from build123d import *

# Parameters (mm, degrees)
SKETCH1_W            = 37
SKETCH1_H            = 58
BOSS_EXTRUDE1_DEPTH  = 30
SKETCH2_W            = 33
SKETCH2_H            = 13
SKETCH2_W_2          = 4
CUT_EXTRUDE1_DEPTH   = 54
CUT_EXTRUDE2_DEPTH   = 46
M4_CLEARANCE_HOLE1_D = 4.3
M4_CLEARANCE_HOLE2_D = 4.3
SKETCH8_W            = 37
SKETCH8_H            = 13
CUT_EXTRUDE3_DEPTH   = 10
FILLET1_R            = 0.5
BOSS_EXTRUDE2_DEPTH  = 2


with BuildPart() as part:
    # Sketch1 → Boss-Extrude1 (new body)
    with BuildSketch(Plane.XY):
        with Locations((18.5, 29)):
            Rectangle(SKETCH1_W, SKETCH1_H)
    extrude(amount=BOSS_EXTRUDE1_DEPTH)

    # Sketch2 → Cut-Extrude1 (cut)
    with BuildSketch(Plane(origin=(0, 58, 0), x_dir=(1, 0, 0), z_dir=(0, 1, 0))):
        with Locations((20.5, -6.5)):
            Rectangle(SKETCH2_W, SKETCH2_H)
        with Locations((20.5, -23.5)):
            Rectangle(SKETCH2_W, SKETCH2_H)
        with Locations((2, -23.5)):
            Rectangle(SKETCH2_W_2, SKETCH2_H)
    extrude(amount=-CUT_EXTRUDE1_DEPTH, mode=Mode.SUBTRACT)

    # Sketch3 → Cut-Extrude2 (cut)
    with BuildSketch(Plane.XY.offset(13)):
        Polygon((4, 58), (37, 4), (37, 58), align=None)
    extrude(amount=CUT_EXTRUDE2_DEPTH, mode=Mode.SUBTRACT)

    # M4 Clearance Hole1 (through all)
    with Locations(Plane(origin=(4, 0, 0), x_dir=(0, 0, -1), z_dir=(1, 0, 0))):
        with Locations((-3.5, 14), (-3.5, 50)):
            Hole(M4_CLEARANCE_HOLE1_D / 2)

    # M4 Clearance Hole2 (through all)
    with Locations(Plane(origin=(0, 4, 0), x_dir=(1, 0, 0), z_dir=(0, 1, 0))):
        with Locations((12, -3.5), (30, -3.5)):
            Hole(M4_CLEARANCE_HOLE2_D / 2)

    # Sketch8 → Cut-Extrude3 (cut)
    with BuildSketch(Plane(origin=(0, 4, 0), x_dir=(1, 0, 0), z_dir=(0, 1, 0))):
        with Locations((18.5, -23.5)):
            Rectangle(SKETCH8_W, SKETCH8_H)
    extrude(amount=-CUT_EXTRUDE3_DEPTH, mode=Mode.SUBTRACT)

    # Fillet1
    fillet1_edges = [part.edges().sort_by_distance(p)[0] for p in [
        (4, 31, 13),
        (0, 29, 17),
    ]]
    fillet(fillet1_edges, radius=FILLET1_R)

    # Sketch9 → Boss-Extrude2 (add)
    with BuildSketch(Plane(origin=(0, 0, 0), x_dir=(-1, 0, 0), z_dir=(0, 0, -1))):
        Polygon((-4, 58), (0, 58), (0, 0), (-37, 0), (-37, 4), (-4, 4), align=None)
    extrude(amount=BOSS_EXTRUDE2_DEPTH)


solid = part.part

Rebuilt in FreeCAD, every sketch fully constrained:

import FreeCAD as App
import Part
import Sketcher

V = App.Vector


def edges_at(feature, points):
    """Names of the edges that pass closest to the given points."""
    edges = feature.Shape.Edges
    near = lambda p: min(range(len(edges)), key=lambda i: edges[i].distToShape(Part.Vertex(*p))[0])
    return sorted({f"Edge{near(p) + 1}" for p in points})


def add_polygon(sketch, points):
    """Adds a closed chain of lines whose ends are joined by coincident constraints."""
    first, n = sketch.GeometryCount, len(points)
    for a, b in zip(points, points[1:] + points[:1]):
        sketch.addGeometry(Part.LineSegment(App.Vector(*a, 0), App.Vector(*b, 0)), False)
    for i in range(n):
        sketch.addConstraint(Sketcher.Constraint("Coincident", first + i, 2, first + (i + 1) % n, 1))

doc = App.newDocument("Part")
params = doc.addObject("Spreadsheet::Sheet", "Params")
for row, (alias, value) in enumerate([
    ("sketch1_width", "37 mm"),
    ("sketch1_height", "58 mm"),
    ("pad1_length", "30 mm"),
    ("sketch2_width", "33 mm"),
    ("sketch2_width2", "37 mm"),
    ("sketch2_height", "13 mm"),
    ("pocket1_length", "54 mm"),
    ("sketch3_width", "33 mm"),
    ("sketch3_height", "54 mm"),
    ("pocket2_length", "46 mm"),
    ("sketch4_diameter", "4.3 mm"),
    ("hole_diameter", "4.3 mm"),
    ("sketch5_diameter", "4.3 mm"),
    ("hole2_diameter", "4.3 mm"),
    ("sketch6_width", "37 mm"),
    ("sketch6_height", "13 mm"),
    ("pocket3_length", "10 mm"),
    ("fillet_radius", "0.5 mm"),
    ("sketch7_width", "4 mm"),
    ("sketch7_width2", "33 mm"),
    ("sketch7_height", "54 mm"),
    ("pad2_length", "2 mm"),
], start=1):
    params.set(f"A{row}", alias)
    params.set(f"B{row}", "=" + value)
    params.setAlias(f"B{row}", alias)

body = doc.addObject("PartDesign::Body", "Body")

# Sketch on XY plane
sketch1 = body.newObject("Sketcher::SketchObject", "Sketch")
sketch1.AttachmentSupport = (doc.getObject("XY_Plane"), [""])
sketch1.MapMode = "FlatFace"
add_polygon(sketch1, [(0, 58), (0, 0), (37, 0), (37, 58)])  # lines 0-3
sketch1.addConstraint(Sketcher.Constraint("Vertical", 0))
sketch1.addConstraint(Sketcher.Constraint("Horizontal", 1))
sketch1.addConstraint(Sketcher.Constraint("Vertical", 2))
sketch1.addConstraint(Sketcher.Constraint("Horizontal", 3))
sketch1.addConstraint(Sketcher.Constraint("Coincident", 0, 2, -1, 1))
sketch1.addConstraint(Sketcher.Constraint("DistanceX", 1, 1, 1, 2, 37.0))
sketch1.addConstraint(Sketcher.Constraint("DistanceY", 0, 2, 0, 1, 58.0))
sketch1.setExpression("Constraints[9]", "Params.sketch1_width")
sketch1.setExpression("Constraints[10]", "Params.sketch1_height")
pad1 = body.newObject("PartDesign::Pad", "Pad")
pad1.Profile = sketch1
pad1.setExpression("Length", "Params.pad1_length")

# Sketch on XZ plane
sketch2 = body.newObject("Sketcher::SketchObject", "Sketch001")
sketch2.AttachmentSupport = (doc.getObject("XZ_Plane"), [""])
sketch2.MapMode = "FlatFace"
sketch2.AttachmentOffset = App.Placement(V(0, 0, -58), App.Rotation())
add_polygon(sketch2, [(4, 0), (4, 13), (37, 13), (37, 0)])  # lines 0-3
add_polygon(sketch2, [(37, 30), (37, 17), (0, 17), (0, 30)])  # lines 4-7
sketch2.addConstraint(Sketcher.Constraint("Vertical", 0))
sketch2.addConstraint(Sketcher.Constraint("Horizontal", 1))
sketch2.addConstraint(Sketcher.Constraint("Vertical", 2))
sketch2.addConstraint(Sketcher.Constraint("Horizontal", 3))
sketch2.addConstraint(Sketcher.Constraint("Vertical", 4))
sketch2.addConstraint(Sketcher.Constraint("Horizontal", 5))
sketch2.addConstraint(Sketcher.Constraint("Vertical", 6))
sketch2.addConstraint(Sketcher.Constraint("Horizontal", 7))
sketch2.addConstraint(Sketcher.Constraint("PointOnObject", 2, 2, -1))
sketch2.addConstraint(Sketcher.Constraint("PointOnObject", 5, 2, -2))
sketch2.addConstraint(Sketcher.Constraint("Vertical", 2, 2, 4, 2))
sketch2.addConstraint(Sketcher.Constraint("Equal", 2, 4))
sketch2.addConstraint(Sketcher.Constraint("DistanceX", 1, 1, 1, 2, 33.0))
sketch2.addConstraint(Sketcher.Constraint("DistanceX", 5, 2, 5, 1, 37.0))
sketch2.addConstraint(Sketcher.Constraint("DistanceY", 0, 1, 0, 2, 13.0))
sketch2.addConstraint(Sketcher.Constraint("DistanceY", -1, 1, 4, 2, 17.0))
sketch2.setExpression("Constraints[20]", "Params.sketch2_width")
sketch2.setExpression("Constraints[21]", "Params.sketch2_width2")
sketch2.setExpression("Constraints[22]", "Params.sketch2_height")
pocket1 = body.newObject("PartDesign::Pocket", "Pocket")
pocket1.Profile = sketch2
pocket1.setExpression("Length", "Params.pocket1_length")
pocket1.Reversed = True

# Sketch on XY plane
sketch3 = body.newObject("Sketcher::SketchObject", "Sketch002")
sketch3.AttachmentSupport = (doc.getObject("XY_Plane"), [""])
sketch3.MapMode = "FlatFace"
sketch3.AttachmentOffset = App.Placement(V(0, 0, 13), App.Rotation())
add_polygon(sketch3, [(4, 58), (37, 4), (37, 58)])  # lines 0-2
sketch3.addConstraint(Sketcher.Constraint("Vertical", 1))
sketch3.addConstraint(Sketcher.Constraint("Horizontal", 2))
sketch3.addConstraint(Sketcher.Constraint("DistanceX", 2, 2, 2, 1, 33.0))
sketch3.addConstraint(Sketcher.Constraint("DistanceY", 1, 1, 1, 2, 54.0))
sketch3.addConstraint(Sketcher.Constraint("DistanceX", -1, 1, 0, 2, 37.0))
sketch3.addConstraint(Sketcher.Constraint("DistanceY", -1, 1, 0, 2, 4.0))
sketch3.setExpression("Constraints[5]", "Params.sketch3_width")
sketch3.setExpression("Constraints[6]", "Params.sketch3_height")
pocket2 = body.newObject("PartDesign::Pocket", "Pocket001")
pocket2.Profile = sketch3
pocket2.setExpression("Length", "Params.pocket2_length")
pocket2.Reversed = True

# Sketch on YZ plane
sketch4 = body.newObject("Sketcher::SketchObject", "Sketch003")
sketch4.AttachmentSupport = (doc.getObject("YZ_Plane"), [""])
sketch4.MapMode = "FlatFace"
sketch4.AttachmentOffset = App.Placement(V(0, 0, 4), App.Rotation())
sketch4.addGeometry(Part.Circle(V(14, 3.5, 0), V(0, 0, 1), 2.1), False)
sketch4.addGeometry(Part.Circle(V(50, 3.5, 0), V(0, 0, 1), 2.1), False)
sketch4.addConstraint(Sketcher.Constraint("Equal", 0, 1))
sketch4.addConstraint(Sketcher.Constraint("Horizontal", 0, 3, 1, 3))
sketch4.addConstraint(Sketcher.Constraint("Diameter", 0, 4.3))
sketch4.addConstraint(Sketcher.Constraint("DistanceX", -1, 1, 0, 3, 14.0))
sketch4.addConstraint(Sketcher.Constraint("DistanceX", -1, 1, 1, 3, 50.0))
sketch4.addConstraint(Sketcher.Constraint("DistanceY", -1, 1, 0, 3, 3.5))
sketch4.setExpression("Constraints[2]", "Params.sketch4_diameter")
doc.recompute()
hole = body.newObject("PartDesign::Hole", "Hole")
hole.Profile = sketch4
hole.ThreadType = "None"
hole.setExpression("Diameter", "Params.hole_diameter")
hole.DepthType = "ThroughAll"

# Sketch on XZ plane
sketch5 = body.newObject("Sketcher::SketchObject", "Sketch004")
sketch5.AttachmentSupport = (doc.getObject("XZ_Plane"), [""])
sketch5.MapMode = "FlatFace"
sketch5.AttachmentOffset = App.Placement(V(0, 0, -4), App.Rotation())
sketch5.addGeometry(Part.Circle(V(12, 3.5, 0), V(0, 0, 1), 2.1), False)
sketch5.addGeometry(Part.Circle(V(30, 3.5, 0), V(0, 0, 1), 2.1), False)
sketch5.addConstraint(Sketcher.Constraint("Equal", 0, 1))
sketch5.addConstraint(Sketcher.Constraint("Horizontal", 0, 3, 1, 3))
sketch5.addConstraint(Sketcher.Constraint("Diameter", 0, 4.3))
sketch5.addConstraint(Sketcher.Constraint("DistanceX", -1, 1, 0, 3, 12.0))
sketch5.addConstraint(Sketcher.Constraint("DistanceX", -1, 1, 1, 3, 30.0))
sketch5.addConstraint(Sketcher.Constraint("DistanceY", -1, 1, 0, 3, 3.5))
sketch5.setExpression("Constraints[2]", "Params.sketch5_diameter")
doc.recompute()
hole2 = body.newObject("PartDesign::Hole", "Hole001")
hole2.Profile = sketch5
hole2.ThreadType = "None"
hole2.setExpression("Diameter", "Params.hole2_diameter")
hole2.DepthType = "ThroughAll"
hole2.Reversed = True

# Sketch on XZ plane
sketch6 = body.newObject("Sketcher::SketchObject", "Sketch005")
sketch6.AttachmentSupport = (doc.getObject("XZ_Plane"), [""])
sketch6.MapMode = "FlatFace"
sketch6.AttachmentOffset = App.Placement(V(0, 0, -4), App.Rotation())
add_polygon(sketch6, [(0, 17), (0, 30), (37, 30), (37, 17)])  # lines 0-3
sketch6.addConstraint(Sketcher.Constraint("Vertical", 0))
sketch6.addConstraint(Sketcher.Constraint("Horizontal", 1))
sketch6.addConstraint(Sketcher.Constraint("Vertical", 2))
sketch6.addConstraint(Sketcher.Constraint("Horizontal", 3))
sketch6.addConstraint(Sketcher.Constraint("PointOnObject", 0, 2, -2))
sketch6.addConstraint(Sketcher.Constraint("DistanceX", 1, 1, 1, 2, 37.0))
sketch6.addConstraint(Sketcher.Constraint("DistanceY", 0, 1, 0, 2, 13.0))
sketch6.addConstraint(Sketcher.Constraint("DistanceY", -1, 1, 0, 2, 30.0))
sketch6.setExpression("Constraints[9]", "Params.sketch6_width")
sketch6.setExpression("Constraints[10]", "Params.sketch6_height")
pocket3 = body.newObject("PartDesign::Pocket", "Pocket002")
pocket3.Profile = sketch6
pocket3.setExpression("Length", "Params.pocket3_length")
pocket3.Reversed = True
doc.recompute()

fillet = body.newObject("PartDesign::Fillet", "Fillet")
fillet.Base = (pocket3, edges_at(pocket3, [(4, 31, 13), (0, 29, 17)]))
fillet.setExpression("Radius", "Params.fillet_radius")

# Sketch on XY plane
sketch7 = body.newObject("Sketcher::SketchObject", "Sketch006")
sketch7.AttachmentSupport = (doc.getObject("XY_Plane"), [""])
sketch7.MapMode = "FlatFace"
add_polygon(sketch7, [(0, 58), (4, 58), (4, 4), (37, 4), (37, 0), (0, 0)])  # lines 0-5
sketch7.addConstraint(Sketcher.Constraint("Horizontal", 0))
sketch7.addConstraint(Sketcher.Constraint("Vertical", 1))
sketch7.addConstraint(Sketcher.Constraint("Horizontal", 2))
sketch7.addConstraint(Sketcher.Constraint("Vertical", 3))
sketch7.addConstraint(Sketcher.Constraint("Horizontal", 4))
sketch7.addConstraint(Sketcher.Constraint("Vertical", 5))
sketch7.addConstraint(Sketcher.Constraint("Coincident", 4, 2, -1, 1))
sketch7.addConstraint(Sketcher.Constraint("Equal", 0, 3))
sketch7.addConstraint(Sketcher.Constraint("DistanceX", 0, 1, 0, 2, 4.0))
sketch7.addConstraint(Sketcher.Constraint("DistanceX", 2, 1, 2, 2, 33.0))
sketch7.addConstraint(Sketcher.Constraint("DistanceY", 1, 2, 1, 1, 54.0))
sketch7.setExpression("Constraints[14]", "Params.sketch7_width")
sketch7.setExpression("Constraints[15]", "Params.sketch7_width2")
sketch7.setExpression("Constraints[16]", "Params.sketch7_height")
pad2 = body.newObject("PartDesign::Pad", "Pad001")
pad2.Profile = sketch7
pad2.setExpression("Length", "Params.pad2_length")
pad2.Reversed = True

doc.recompute()
